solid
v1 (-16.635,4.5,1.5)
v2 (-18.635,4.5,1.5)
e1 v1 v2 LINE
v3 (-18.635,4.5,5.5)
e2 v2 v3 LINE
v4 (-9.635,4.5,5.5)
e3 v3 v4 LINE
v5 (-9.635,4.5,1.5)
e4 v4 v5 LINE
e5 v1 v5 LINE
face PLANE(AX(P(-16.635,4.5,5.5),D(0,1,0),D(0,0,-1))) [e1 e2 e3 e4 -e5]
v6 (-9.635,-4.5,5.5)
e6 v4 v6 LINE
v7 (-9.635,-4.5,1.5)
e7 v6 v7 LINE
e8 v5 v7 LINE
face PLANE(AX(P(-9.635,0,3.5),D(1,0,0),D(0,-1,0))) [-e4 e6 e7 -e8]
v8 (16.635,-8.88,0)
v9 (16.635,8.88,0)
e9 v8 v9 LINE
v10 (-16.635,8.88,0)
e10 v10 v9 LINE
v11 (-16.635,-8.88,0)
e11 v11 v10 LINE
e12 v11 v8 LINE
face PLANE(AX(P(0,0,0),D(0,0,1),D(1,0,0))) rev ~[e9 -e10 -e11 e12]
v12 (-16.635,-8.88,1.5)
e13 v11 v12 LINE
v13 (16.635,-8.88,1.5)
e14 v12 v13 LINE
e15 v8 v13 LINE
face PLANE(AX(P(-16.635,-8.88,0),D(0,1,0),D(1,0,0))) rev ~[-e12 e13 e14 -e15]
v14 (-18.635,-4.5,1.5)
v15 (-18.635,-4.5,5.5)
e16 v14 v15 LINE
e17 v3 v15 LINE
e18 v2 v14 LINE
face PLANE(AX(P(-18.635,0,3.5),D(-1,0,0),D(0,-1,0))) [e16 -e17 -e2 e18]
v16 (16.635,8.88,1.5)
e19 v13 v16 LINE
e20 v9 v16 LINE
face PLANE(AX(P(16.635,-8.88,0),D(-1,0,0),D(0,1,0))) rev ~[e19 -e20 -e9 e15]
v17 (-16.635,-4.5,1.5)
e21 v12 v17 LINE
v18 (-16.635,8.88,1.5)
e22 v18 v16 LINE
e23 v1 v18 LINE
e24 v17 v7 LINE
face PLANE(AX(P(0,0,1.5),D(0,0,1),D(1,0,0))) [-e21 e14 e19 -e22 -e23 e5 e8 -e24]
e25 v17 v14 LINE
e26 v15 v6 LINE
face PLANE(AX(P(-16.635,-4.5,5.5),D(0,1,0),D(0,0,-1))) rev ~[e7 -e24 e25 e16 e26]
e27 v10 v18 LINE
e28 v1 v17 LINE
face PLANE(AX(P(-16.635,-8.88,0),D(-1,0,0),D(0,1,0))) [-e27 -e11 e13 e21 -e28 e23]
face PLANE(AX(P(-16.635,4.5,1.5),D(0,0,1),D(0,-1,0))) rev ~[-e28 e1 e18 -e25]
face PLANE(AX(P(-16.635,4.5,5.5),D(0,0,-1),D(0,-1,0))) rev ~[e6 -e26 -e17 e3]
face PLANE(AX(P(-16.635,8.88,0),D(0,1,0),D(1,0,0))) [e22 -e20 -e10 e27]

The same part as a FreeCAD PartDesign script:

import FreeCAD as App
import Part
import Sketcher


def add_polygon(sketch, points):
    """Adds a closed chain of lines whose ends are joined by coincident constraints."""
    first, n = sketch.GeometryCount, len(points)
    for a, b in zip(points, points[1:] + points[:1]):
        sketch.addGeometry(Part.LineSegment(App.Vector(*a, 0), App.Vector(*b, 0)), False)
    for i in range(n):
        sketch.addConstraint(Sketcher.Constraint("Coincident", first + i, 2, first + (i + 1) % n, 1))

doc = App.newDocument("Part")
params = doc.addObject("Spreadsheet::Sheet", "Params")
for row, (alias, value) in enumerate([
    ("sketch1_width", "33.27 mm"),
    ("sketch1_height", "17.76 mm"),
    ("pad1_length", "1.5 mm"),
    ("sketch2_width", "9 mm"),
    ("sketch2_height", "4 mm"),
    ("pad2_length", "2 mm"),
    ("sketch3_width", "9 mm"),
    ("sketch3_height", "4 mm"),
    ("pad3_length", "7 mm"),
], start=1):
    params.set(f"A{row}", alias)
    params.set(f"B{row}", "=" + value)
    params.setAlias(f"B{row}", alias)

body = doc.addObject("PartDesign::Body", "Body")

sketch1 = body.newObject("Sketcher::SketchObject", "Sketch")
sketch1.AttachmentSupport = (doc.getObject("XY_Plane"), [""])
sketch1.MapMode = "FlatFace"
add_polygon(sketch1, [(-16.635, 8.88), (-16.635, -8.88), (16.635, -8.88), (16.635, 8.88)])
sketch1.addConstraint([
    Sketcher.Constraint("Vertical", 0),
    Sketcher.Constraint("Horizontal", 1),
    Sketcher.Constraint("Vertical", 2),
    Sketcher.Constraint("Horizontal", 3),
    Sketcher.Constraint("Symmetric", 0, 2, 2, 2, -1, 1),
    Sketcher.Constraint("DistanceX", 1, 1, 1, 2, 33.27),
    Sketcher.Constraint("DistanceY", 0, 2, 0, 1, 17.76),
])
sketch1.setExpression("Constraints[9]", "Params.sketch1_width")
sketch1.setExpression("Constraints[10]", "Params.sketch1_height")
pad1 = body.newObject("PartDesign::Pad", "Pad")
pad1.Profile = sketch1
pad1.setExpression("Length", "Params.pad1_length")
body2 = doc.addObject("PartDesign::Body", "Body001")

sketch2 = body2.newObject("Sketcher::SketchObject", "Sketch001")
sketch2.AttachmentSupport = (doc.getObject("YZ_Plane001"), [""])
sketch2.MapMode = "FlatFace"
sketch2.AttachmentOffset = App.Placement(App.Vector(0, 0, -16.635), App.Rotation())
add_polygon(sketch2, [(4.5, 5.5), (4.5, 1.5), (-4.5, 1.5), (-4.5, 5.5)])
sketch2.addConstraint([
    Sketcher.Constraint("Vertical", 0),
    Sketcher.Constraint("Horizontal", 1),
    Sketcher.Constraint("Vertical", 2),
    Sketcher.Constraint("Horizontal", 3),
    Sketcher.Constraint("DistanceX", 1, 2, 1, 1, 9.0),
    Sketcher.Constraint("DistanceY", 0, 2, 0, 1, 4.0),
    Sketcher.Constraint("DistanceX", -1, 1, 0, 2, 4.5),
    Sketcher.Constraint("DistanceY", -1, 1, 0, 2, 1.5),
])
sketch2.setExpression("Constraints[8]", "Params.sketch2_width")
sketch2.setExpression("Constraints[9]", "Params.sketch2_height")
pad2 = body2.newObject("PartDesign::Pad", "Pad001")
pad2.Profile = sketch2
pad2.setExpression("Length", "Params.pad2_length")
pad2.Reversed = True
body.AllowCompound = True
doc.recompute()

boolean = body.newObject("PartDesign::Boolean", "Boolean")
boolean.Type = "Fuse"
boolean.addObjects([body2])

sketch3 = body.newObject("Sketcher::SketchObject", "Sketch002")
sketch3.AttachmentSupport = (doc.getObject("YZ_Plane"), [""])
sketch3.MapMode = "FlatFace"
sketch3.AttachmentOffset = App.Placement(App.Vector(0, 0, -16.635), App.Rotation())
add_polygon(sketch3, [(4.5, 1.5), (4.5, 5.5), (-4.5, 5.5), (-4.5, 1.5)])
sketch3.addConstraint([
    Sketcher.Constraint("Vertical", 0),
    Sketcher.Constraint("Horizontal", 1),
    Sketcher.Constraint("Vertical", 2),
    Sketcher.Constraint("Horizontal", 3),
    Sketcher.Constraint("DistanceX", 1, 2, 1, 1, 9.0),
    Sketcher.Constraint("DistanceY", 0, 1, 0, 2, 4.0),
    Sketcher.Constraint("DistanceX", -1, 1, 0, 2, 4.5),
    Sketcher.Constraint("DistanceY", -1, 1, 0, 2, 5.5),
])
sketch3.setExpression("Constraints[8]", "Params.sketch3_width")
sketch3.setExpression("Constraints[9]", "Params.sketch3_height")
pad3 = body.newObject("PartDesign::Pad", "Pad002")
pad3.Profile = sketch3
pad3.setExpression("Length", "Params.pad3_length")

doc.recompute()
